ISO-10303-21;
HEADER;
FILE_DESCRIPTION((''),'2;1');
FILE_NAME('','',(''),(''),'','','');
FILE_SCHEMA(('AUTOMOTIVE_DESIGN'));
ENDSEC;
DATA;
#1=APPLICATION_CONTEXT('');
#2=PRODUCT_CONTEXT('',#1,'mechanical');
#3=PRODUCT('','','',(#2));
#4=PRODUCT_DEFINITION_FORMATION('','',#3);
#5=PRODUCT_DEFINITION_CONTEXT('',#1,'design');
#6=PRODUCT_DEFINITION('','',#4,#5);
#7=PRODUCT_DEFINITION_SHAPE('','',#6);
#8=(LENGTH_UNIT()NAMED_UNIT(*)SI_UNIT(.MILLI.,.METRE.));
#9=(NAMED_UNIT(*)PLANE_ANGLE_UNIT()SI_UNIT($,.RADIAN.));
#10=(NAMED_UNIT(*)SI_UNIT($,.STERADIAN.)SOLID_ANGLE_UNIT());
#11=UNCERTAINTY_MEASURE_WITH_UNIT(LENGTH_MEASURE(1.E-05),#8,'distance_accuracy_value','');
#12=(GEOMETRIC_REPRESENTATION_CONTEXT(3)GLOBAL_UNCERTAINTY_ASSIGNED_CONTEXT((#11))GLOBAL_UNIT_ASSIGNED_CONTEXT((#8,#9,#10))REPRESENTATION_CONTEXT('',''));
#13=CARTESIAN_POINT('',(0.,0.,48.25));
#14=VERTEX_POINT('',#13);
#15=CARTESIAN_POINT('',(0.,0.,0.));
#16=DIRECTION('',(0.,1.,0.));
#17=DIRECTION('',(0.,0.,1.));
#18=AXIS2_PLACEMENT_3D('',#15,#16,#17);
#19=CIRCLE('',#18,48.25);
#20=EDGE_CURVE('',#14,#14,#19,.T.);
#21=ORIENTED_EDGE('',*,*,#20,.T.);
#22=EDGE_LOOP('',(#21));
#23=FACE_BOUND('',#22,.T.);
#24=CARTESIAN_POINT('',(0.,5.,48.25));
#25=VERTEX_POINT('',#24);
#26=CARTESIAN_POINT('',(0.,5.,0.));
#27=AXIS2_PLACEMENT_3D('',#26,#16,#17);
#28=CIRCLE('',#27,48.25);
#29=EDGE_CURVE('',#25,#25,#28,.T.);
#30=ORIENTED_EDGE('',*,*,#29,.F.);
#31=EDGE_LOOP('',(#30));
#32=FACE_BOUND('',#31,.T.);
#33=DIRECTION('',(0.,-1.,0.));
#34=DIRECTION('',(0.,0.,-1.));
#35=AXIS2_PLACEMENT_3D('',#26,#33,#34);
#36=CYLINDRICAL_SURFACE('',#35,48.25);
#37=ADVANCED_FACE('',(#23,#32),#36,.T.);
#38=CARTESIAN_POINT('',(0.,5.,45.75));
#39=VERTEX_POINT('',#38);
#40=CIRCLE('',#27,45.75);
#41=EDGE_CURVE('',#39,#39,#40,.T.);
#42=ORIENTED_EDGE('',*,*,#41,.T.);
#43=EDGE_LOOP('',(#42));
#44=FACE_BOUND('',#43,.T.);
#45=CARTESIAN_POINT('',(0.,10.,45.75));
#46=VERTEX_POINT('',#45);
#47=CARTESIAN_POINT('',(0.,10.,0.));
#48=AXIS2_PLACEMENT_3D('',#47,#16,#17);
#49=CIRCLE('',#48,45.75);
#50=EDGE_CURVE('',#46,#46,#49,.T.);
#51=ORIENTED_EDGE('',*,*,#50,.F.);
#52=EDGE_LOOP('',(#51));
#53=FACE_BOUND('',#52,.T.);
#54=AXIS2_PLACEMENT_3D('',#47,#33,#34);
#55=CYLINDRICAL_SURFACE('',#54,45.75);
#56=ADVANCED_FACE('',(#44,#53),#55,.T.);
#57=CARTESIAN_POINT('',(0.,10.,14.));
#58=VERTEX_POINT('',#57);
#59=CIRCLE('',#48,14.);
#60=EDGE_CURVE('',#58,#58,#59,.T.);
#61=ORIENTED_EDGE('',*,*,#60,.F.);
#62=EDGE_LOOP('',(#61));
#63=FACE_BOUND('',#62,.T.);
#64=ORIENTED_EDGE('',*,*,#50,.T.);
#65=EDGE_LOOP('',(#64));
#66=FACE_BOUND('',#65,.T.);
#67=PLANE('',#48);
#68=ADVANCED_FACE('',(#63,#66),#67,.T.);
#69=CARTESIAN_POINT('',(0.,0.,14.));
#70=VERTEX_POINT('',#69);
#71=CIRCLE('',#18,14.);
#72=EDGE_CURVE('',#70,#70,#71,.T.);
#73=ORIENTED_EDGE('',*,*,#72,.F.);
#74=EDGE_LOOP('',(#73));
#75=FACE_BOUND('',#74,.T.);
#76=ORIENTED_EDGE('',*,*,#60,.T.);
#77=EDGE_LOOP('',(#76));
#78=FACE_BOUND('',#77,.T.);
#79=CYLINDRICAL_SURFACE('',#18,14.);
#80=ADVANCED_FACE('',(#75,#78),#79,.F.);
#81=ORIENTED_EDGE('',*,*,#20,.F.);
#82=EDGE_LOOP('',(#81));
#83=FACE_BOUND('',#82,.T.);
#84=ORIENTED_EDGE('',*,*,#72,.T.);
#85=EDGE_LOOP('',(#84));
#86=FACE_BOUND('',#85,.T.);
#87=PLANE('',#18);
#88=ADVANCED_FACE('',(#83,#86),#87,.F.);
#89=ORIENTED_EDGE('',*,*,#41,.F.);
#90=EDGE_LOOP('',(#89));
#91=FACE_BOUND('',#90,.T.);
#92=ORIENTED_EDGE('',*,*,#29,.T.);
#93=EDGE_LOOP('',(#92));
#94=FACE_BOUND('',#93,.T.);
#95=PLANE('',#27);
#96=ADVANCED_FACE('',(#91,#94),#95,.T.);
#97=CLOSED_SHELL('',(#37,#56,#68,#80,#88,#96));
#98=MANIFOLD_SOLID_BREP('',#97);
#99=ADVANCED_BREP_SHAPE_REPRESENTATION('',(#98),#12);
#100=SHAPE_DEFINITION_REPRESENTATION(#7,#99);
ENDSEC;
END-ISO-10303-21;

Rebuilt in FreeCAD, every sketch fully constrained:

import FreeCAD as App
import Part
import Sketcher

V = App.Vector
Q = App.Units.Quantity

doc = App.newDocument("Part")
params = doc.addObject("Spreadsheet::Sheet", "Params")
for row, (alias, value) in enumerate([
    ("sketch1_diameter", "96.5 mm"),
    ("pad1_length", "5 mm"),
    ("sketch2_diameter", "91.5 mm"),
    ("pad2_length", "5 mm"),
    ("sketch3_diameter", "28 mm"),
], start=1):
    params.set(f"A{row}", alias)
    params.set(f"B{row}", "=" + value)
    params.setAlias(f"B{row}", alias)

body = doc.addObject("PartDesign::Body", "Body")

# Sketch on XZ plane
sketch1 = body.newObject("Sketcher::SketchObject", "Sketch")
sketch1.AttachmentSupport = (doc.getObject("XZ_Plane"), [""])
sketch1.MapMode = "FlatFace"
sketch1.addGeometry(Part.Circle(V(0, 0, 0), V(0, 0, 1), 48), False)
sketch1.addConstraint([
    Sketcher.Constraint("Coincident", 0, 3, -1, 1),
    Sketcher.Constraint("Diameter", 0, Q("96.5 mm")),
])
sketch1.setExpression("Constraints[1]", "Params.sketch1_diameter")
pad1 = body.newObject("PartDesign::Pad", "Pad")
pad1.Profile = sketch1
pad1.setExpression("Length", "Params.pad1_length")
pad1.Reversed = True

# Sketch on XZ plane
sketch2 = body.newObject("Sketcher::SketchObject", "Sketch001")
sketch2.AttachmentSupport = (doc.getObject("XZ_Plane"), [""])
sketch2.MapMode = "FlatFace"
sketch2.AttachmentOffset = App.Placement(V(0, 0, -5), App.Rotation())
sketch2.addGeometry(Part.Circle(V(0, 0, 0), V(0, 0, 1), 46), False)
sketch2.addConstraint([
    Sketcher.Constraint("Coincident", 0, 3, -1, 1),
    Sketcher.Constraint("Diameter", 0, Q("91.5 mm")),
])
sketch2.setExpression("Constraints[1]", "Params.sketch2_diameter")
pad2 = body.newObject("PartDesign::Pad", "Pad001")
pad2.Profile = sketch2
pad2.setExpression("Length", "Params.pad2_length")
pad2.Reversed = True

# Sketch on XZ plane
sketch3 = body.newObject("Sketcher::SketchObject", "Sketch002")
sketch3.AttachmentSupport = (doc.getObject("XZ_Plane"), [""])
sketch3.MapMode = "FlatFace"
sketch3.AttachmentOffset = App.Placement(V(0, 0, -10), App.Rotation())
sketch3.addGeometry(Part.Circle(V(0, 0, 0), V(0, 0, 1), 14), False)
sketch3.addConstraint([
    Sketcher.Constraint("Coincident", 0, 3, -1, 1),
    Sketcher.Constraint("Diameter", 0, Q("28 mm")),
])
sketch3.setExpression("Constraints[1]", "Params.sketch3_diameter")
pocket1 = body.newObject("PartDesign::Pocket", "Pocket")
pocket1.Profile = sketch3
pocket1.Type = "ThroughAll"
pocket1.Reversed = True

doc.recompute()
